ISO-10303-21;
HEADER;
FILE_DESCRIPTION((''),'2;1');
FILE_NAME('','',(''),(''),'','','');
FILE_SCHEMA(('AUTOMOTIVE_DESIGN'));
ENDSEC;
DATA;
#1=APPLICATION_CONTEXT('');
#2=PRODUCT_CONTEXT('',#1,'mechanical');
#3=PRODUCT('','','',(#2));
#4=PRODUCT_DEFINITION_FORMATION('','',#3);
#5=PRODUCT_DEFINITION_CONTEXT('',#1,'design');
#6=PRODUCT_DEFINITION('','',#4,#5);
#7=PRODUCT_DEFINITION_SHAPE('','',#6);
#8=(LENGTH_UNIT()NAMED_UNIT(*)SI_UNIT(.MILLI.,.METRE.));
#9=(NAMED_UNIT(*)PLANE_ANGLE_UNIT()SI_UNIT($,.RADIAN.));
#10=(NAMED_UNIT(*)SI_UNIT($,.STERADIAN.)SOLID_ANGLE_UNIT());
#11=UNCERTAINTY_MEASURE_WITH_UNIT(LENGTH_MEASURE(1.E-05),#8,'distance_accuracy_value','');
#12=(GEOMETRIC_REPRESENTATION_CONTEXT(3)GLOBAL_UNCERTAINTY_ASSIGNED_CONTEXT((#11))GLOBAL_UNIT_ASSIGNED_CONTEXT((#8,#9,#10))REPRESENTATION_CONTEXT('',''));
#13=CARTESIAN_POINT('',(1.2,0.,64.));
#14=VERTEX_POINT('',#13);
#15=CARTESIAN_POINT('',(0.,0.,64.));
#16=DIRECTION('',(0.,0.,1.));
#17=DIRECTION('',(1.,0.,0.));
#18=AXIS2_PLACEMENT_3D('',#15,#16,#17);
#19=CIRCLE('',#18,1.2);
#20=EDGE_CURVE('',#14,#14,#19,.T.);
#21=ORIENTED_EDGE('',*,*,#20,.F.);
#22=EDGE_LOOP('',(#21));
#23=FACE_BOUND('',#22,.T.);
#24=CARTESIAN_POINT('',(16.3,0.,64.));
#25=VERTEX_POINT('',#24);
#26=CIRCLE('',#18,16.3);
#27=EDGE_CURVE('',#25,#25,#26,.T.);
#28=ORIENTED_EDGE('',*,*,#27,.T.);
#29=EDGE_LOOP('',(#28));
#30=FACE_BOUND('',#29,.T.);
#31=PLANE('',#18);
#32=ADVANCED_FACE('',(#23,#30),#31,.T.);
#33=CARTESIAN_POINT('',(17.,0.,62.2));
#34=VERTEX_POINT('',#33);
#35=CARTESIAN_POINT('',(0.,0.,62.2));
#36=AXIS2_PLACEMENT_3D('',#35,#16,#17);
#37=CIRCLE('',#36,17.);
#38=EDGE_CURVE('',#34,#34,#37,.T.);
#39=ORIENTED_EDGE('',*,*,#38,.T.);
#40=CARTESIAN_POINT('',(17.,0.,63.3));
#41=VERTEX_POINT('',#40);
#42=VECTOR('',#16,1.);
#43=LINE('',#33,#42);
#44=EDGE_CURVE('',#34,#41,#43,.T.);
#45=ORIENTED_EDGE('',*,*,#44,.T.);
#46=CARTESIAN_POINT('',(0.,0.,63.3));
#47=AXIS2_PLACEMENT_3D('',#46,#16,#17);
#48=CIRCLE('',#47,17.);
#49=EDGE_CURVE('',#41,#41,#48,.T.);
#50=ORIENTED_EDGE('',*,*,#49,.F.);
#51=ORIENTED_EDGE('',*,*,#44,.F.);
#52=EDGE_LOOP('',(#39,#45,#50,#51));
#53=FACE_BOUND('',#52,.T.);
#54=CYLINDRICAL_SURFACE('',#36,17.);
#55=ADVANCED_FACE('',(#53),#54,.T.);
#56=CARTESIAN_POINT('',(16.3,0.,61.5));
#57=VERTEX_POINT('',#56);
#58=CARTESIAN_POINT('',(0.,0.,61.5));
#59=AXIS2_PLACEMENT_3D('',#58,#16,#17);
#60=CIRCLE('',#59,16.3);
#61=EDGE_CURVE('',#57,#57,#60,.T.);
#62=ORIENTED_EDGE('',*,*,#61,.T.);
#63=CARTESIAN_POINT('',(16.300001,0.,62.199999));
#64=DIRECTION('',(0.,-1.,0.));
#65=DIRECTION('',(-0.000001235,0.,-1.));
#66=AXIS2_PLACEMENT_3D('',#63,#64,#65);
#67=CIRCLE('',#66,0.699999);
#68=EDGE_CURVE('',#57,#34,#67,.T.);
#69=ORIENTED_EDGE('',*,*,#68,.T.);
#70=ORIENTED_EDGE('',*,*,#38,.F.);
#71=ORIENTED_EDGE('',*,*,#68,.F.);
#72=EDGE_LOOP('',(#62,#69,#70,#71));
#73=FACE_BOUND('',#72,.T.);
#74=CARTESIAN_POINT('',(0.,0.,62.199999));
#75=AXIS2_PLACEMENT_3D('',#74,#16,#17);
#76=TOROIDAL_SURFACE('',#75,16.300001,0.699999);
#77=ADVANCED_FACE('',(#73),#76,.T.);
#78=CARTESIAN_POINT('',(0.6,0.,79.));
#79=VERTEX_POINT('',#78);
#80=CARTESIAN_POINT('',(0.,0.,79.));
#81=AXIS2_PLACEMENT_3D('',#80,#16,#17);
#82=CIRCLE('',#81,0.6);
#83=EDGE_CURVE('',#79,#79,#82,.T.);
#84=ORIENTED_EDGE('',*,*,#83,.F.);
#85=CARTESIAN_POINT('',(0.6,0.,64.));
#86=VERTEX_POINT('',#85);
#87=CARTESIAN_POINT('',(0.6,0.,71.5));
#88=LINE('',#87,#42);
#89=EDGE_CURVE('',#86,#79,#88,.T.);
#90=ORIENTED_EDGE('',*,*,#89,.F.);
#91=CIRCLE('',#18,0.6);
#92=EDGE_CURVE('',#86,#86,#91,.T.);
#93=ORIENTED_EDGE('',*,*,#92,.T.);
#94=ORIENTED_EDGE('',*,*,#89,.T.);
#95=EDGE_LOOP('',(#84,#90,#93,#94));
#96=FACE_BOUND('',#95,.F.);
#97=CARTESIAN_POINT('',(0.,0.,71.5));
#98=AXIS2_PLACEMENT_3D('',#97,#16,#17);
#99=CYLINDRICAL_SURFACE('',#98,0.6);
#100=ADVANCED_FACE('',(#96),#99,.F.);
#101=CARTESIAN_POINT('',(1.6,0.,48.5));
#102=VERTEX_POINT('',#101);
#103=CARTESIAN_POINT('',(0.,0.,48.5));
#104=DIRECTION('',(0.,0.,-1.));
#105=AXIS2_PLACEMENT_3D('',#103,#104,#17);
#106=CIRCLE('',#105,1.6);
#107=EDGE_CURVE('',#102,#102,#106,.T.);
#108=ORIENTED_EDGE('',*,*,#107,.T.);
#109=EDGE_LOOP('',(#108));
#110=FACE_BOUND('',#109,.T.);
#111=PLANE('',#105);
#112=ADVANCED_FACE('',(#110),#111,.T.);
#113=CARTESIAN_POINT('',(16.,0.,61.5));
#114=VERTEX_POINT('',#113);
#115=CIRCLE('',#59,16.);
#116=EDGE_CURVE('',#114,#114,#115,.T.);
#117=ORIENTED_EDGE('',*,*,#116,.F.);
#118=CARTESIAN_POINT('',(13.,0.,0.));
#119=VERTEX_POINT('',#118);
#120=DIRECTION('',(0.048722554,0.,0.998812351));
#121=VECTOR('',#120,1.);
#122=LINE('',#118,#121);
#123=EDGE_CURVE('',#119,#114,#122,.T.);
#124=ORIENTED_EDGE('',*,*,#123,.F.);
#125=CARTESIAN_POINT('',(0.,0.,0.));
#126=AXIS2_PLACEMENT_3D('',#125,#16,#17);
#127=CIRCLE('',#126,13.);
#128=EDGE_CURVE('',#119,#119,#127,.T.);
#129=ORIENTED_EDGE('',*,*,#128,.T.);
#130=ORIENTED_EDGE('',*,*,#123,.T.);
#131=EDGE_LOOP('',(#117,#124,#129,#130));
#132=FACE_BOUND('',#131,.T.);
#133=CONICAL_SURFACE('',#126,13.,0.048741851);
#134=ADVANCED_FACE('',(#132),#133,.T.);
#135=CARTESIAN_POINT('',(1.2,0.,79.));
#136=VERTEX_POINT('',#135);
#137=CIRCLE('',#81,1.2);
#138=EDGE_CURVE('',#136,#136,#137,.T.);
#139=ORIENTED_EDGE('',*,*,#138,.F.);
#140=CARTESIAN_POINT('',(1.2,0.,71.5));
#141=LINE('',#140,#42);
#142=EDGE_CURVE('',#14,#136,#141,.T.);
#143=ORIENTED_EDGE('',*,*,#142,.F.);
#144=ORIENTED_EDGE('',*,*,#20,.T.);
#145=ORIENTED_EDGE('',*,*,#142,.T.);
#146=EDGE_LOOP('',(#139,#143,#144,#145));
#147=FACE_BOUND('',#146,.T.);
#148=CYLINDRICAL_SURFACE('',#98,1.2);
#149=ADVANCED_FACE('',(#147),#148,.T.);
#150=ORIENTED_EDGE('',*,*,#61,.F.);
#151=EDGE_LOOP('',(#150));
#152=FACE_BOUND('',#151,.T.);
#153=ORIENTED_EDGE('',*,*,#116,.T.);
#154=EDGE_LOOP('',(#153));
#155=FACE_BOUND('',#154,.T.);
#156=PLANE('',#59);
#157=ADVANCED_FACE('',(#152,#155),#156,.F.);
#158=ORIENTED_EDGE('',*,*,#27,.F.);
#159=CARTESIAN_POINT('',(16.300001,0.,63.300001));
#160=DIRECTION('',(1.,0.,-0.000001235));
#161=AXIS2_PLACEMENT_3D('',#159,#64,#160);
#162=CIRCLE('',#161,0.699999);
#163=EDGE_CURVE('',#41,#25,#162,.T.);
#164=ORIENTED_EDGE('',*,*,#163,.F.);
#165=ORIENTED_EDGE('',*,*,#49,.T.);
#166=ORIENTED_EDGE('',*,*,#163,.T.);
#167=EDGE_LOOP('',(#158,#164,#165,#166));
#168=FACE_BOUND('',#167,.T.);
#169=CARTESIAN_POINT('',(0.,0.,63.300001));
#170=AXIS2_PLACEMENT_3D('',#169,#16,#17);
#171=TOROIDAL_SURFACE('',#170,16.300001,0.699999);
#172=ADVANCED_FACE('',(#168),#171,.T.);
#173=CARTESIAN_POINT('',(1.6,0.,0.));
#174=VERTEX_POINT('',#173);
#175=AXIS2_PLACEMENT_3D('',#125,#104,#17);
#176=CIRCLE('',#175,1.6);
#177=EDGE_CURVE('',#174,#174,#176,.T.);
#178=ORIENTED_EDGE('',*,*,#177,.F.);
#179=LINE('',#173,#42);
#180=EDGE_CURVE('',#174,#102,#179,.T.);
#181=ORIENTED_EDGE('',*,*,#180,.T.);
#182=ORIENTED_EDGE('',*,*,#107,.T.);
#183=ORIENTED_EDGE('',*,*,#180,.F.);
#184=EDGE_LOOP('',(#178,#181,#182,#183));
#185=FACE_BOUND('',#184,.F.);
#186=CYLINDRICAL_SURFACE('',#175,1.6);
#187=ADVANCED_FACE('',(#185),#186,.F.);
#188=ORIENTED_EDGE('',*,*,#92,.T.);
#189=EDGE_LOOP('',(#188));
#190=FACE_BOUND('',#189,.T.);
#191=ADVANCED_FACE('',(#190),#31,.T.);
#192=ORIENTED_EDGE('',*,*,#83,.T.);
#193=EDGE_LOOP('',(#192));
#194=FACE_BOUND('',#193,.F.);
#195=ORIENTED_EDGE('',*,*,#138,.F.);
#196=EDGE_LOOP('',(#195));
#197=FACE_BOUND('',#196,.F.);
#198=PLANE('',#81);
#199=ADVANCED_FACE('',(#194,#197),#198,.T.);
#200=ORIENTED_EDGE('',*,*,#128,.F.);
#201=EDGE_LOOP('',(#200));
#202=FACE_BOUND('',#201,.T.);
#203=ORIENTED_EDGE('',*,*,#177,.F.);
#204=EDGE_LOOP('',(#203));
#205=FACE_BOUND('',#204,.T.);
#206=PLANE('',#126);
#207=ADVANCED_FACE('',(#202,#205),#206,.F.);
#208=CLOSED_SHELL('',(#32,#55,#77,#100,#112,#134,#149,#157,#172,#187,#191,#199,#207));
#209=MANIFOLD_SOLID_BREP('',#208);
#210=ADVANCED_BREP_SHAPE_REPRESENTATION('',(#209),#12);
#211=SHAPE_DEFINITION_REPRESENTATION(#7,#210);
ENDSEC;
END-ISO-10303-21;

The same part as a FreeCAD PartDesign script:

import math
import FreeCAD as App
import Part
import Sketcher
from FreeCAD import Vector

doc = App.newDocument("Part")
body = doc.addObject("PartDesign::Body", "Body")

sketch1 = body.newObject("Sketcher::SketchObject", "Sketch")
sketch1.AttachmentSupport = (doc.getObject("XZ_Plane"), [""])
sketch1.MapMode = "FlatFace"
sketch1.addGeometry(Part.LineSegment(Vector(0.6, 79, 0), Vector(0.6, 64, 0)), False)
sketch1.addGeometry(Part.LineSegment(Vector(0.6, 64, 0), Vector(0, 64, 0)), False)
sketch1.addGeometry(Part.LineSegment(Vector(0, 64, 0), Vector(0, 0, 0)), False)
sketch1.addGeometry(Part.LineSegment(Vector(0, 0, 0), Vector(13, 0, 0)), False)
sketch1.addGeometry(Part.LineSegment(Vector(13, 0, 0), Vector(16, 61.5, 0)), False)
sketch1.addGeometry(Part.LineSegment(Vector(16, 61.5, 0), Vector(16.3, 61.5, 0)), False)
sketch1.addGeometry(Part.ArcOfCircle(Part.Circle(Vector(16.3, 62.2, 0), Vector(0, 0, 1), 0.7), math.radians(-90), math.radians(0)), False)
sketch1.addGeometry(Part.LineSegment(Vector(17, 62.2, 0), Vector(17, 63.3, 0)), False)
sketch1.addGeometry(Part.ArcOfCircle(Part.Circle(Vector(16.3, 63.3, 0), Vector(0, 0, 1), 0.7), math.radians(0), math.radians(90)), False)
sketch1.addGeometry(Part.LineSegment(Vector(16.3, 64, 0), Vector(1.2, 64, 0)), False)
sketch1.addGeometry(Part.LineSegment(Vector(1.2, 64, 0), Vector(1.2, 79, 0)), False)
sketch1.addGeometry(Part.LineSegment(Vector(1.2, 79, 0), Vector(0.6, 79, 0)), False)
sketch1.addConstraint(Sketcher.Constraint("Coincident", 0, 2, 1, 1))
sketch1.addConstraint(Sketcher.Constraint("Coincident", 1, 2, 2, 1))
sketch1.addConstraint(Sketcher.Constraint("Coincident", 2, 2, 3, 1))
sketch1.addConstraint(Sketcher.Constraint("Coincident", 3, 2, 4, 1))
sketch1.addConstraint(Sketcher.Constraint("Coincident", 4, 2, 5, 1))
sketch1.addConstraint(Sketcher.Constraint("Tangent", 5, 2, 6, 1))
sketch1.addConstraint(Sketcher.Constraint("Tangent", 6, 2, 7, 1))
sketch1.addConstraint(Sketcher.Constraint("Tangent", 7, 2, 8, 1))
sketch1.addConstraint(Sketcher.Constraint("Tangent", 8, 2, 9, 1))
sketch1.addConstraint(Sketcher.Constraint("Coincident", 9, 2, 10, 1))
sketch1.addConstraint(Sketcher.Constraint("Coincident", 10, 2, 11, 1))
sketch1.addConstraint(Sketcher.Constraint("Coincident", 11, 2, 0, 1))
sketch1.addConstraint(Sketcher.Constraint("Vertical", 0))
sketch1.addConstraint(Sketcher.Constraint("Horizontal", 1))
sketch1.addConstraint(Sketcher.Constraint("Vertical", 2))
sketch1.addConstraint(Sketcher.Constraint("Horizontal", 3))
sketch1.addConstraint(Sketcher.Constraint("Horizontal", 5))
sketch1.addConstraint(Sketcher.Constraint("Vertical", 7))
sketch1.addConstraint(Sketcher.Constraint("Horizontal", 9))
sketch1.addConstraint(Sketcher.Constraint("Vertical", 10))
sketch1.addConstraint(Sketcher.Constraint("Horizontal", 11))
sketch1.addConstraint(Sketcher.Constraint("Coincident", 2, 2, -1, 1))
sketch1.addConstraint(Sketcher.Constraint("Equal", 6, 8))
sketch1.addConstraint(Sketcher.Constraint("Horizontal", 1, 2, 8, 2))
sketch1.addConstraint(Sketcher.Constraint("Equal", 1, 11))
sketch1.addConstraint(Sketcher.Constraint("Radius", 6, 0.699999))
sketch1.addConstraint(Sketcher.Constraint("DistanceX", 3, 1, 3, 2, 13.0))
sketch1.addConstraint(Sketcher.Constraint("DistanceY", 0, 2, 0, 1, 15.0))
sketch1.addConstraint(Sketcher.Constraint("DistanceY", 2, 2, 2, 1, 64.0))
sketch1.addConstraint(Sketcher.Constraint("DistanceX", 1, 2, 1, 1, 0.6))
sketch1.addConstraint(Sketcher.Constraint("DistanceX", 5, 1, 5, 2, 0.3))
sketch1.addConstraint(Sketcher.Constraint("DistanceX", 9, 2, 9, 1, 15.1))
sketch1.addConstraint(Sketcher.Constraint("DistanceY", 7, 1, 7, 2, 1.1))
revolution = body.newObject("PartDesign::Revolution", "Revolution")
revolution.Profile = sketch1
revolution.ReferenceAxis = (sketch1, ["V_Axis"])
revolution.Angle = 360

sketch2 = body.newObject("Sketcher::SketchObject", "Sketch001")
sketch2.AttachmentSupport = (doc.getObject("XY_Plane"), [""])
sketch2.MapMode = "FlatFace"
sketch2.addGeometry(Part.Circle(Vector(0, 0, 0), Vector(0, 0, 1), 1.6), False)
sketch2.addConstraint(Sketcher.Constraint("Coincident", 0, 3, -1, 1))
sketch2.addConstraint(Sketcher.Constraint("Diameter", 0, 3.2))
pocket1 = body.newObject("PartDesign::Pocket", "Pocket")
pocket1.Profile = sketch2
pocket1.Length = 48.5
pocket1.Reversed = True

doc.recompute()
